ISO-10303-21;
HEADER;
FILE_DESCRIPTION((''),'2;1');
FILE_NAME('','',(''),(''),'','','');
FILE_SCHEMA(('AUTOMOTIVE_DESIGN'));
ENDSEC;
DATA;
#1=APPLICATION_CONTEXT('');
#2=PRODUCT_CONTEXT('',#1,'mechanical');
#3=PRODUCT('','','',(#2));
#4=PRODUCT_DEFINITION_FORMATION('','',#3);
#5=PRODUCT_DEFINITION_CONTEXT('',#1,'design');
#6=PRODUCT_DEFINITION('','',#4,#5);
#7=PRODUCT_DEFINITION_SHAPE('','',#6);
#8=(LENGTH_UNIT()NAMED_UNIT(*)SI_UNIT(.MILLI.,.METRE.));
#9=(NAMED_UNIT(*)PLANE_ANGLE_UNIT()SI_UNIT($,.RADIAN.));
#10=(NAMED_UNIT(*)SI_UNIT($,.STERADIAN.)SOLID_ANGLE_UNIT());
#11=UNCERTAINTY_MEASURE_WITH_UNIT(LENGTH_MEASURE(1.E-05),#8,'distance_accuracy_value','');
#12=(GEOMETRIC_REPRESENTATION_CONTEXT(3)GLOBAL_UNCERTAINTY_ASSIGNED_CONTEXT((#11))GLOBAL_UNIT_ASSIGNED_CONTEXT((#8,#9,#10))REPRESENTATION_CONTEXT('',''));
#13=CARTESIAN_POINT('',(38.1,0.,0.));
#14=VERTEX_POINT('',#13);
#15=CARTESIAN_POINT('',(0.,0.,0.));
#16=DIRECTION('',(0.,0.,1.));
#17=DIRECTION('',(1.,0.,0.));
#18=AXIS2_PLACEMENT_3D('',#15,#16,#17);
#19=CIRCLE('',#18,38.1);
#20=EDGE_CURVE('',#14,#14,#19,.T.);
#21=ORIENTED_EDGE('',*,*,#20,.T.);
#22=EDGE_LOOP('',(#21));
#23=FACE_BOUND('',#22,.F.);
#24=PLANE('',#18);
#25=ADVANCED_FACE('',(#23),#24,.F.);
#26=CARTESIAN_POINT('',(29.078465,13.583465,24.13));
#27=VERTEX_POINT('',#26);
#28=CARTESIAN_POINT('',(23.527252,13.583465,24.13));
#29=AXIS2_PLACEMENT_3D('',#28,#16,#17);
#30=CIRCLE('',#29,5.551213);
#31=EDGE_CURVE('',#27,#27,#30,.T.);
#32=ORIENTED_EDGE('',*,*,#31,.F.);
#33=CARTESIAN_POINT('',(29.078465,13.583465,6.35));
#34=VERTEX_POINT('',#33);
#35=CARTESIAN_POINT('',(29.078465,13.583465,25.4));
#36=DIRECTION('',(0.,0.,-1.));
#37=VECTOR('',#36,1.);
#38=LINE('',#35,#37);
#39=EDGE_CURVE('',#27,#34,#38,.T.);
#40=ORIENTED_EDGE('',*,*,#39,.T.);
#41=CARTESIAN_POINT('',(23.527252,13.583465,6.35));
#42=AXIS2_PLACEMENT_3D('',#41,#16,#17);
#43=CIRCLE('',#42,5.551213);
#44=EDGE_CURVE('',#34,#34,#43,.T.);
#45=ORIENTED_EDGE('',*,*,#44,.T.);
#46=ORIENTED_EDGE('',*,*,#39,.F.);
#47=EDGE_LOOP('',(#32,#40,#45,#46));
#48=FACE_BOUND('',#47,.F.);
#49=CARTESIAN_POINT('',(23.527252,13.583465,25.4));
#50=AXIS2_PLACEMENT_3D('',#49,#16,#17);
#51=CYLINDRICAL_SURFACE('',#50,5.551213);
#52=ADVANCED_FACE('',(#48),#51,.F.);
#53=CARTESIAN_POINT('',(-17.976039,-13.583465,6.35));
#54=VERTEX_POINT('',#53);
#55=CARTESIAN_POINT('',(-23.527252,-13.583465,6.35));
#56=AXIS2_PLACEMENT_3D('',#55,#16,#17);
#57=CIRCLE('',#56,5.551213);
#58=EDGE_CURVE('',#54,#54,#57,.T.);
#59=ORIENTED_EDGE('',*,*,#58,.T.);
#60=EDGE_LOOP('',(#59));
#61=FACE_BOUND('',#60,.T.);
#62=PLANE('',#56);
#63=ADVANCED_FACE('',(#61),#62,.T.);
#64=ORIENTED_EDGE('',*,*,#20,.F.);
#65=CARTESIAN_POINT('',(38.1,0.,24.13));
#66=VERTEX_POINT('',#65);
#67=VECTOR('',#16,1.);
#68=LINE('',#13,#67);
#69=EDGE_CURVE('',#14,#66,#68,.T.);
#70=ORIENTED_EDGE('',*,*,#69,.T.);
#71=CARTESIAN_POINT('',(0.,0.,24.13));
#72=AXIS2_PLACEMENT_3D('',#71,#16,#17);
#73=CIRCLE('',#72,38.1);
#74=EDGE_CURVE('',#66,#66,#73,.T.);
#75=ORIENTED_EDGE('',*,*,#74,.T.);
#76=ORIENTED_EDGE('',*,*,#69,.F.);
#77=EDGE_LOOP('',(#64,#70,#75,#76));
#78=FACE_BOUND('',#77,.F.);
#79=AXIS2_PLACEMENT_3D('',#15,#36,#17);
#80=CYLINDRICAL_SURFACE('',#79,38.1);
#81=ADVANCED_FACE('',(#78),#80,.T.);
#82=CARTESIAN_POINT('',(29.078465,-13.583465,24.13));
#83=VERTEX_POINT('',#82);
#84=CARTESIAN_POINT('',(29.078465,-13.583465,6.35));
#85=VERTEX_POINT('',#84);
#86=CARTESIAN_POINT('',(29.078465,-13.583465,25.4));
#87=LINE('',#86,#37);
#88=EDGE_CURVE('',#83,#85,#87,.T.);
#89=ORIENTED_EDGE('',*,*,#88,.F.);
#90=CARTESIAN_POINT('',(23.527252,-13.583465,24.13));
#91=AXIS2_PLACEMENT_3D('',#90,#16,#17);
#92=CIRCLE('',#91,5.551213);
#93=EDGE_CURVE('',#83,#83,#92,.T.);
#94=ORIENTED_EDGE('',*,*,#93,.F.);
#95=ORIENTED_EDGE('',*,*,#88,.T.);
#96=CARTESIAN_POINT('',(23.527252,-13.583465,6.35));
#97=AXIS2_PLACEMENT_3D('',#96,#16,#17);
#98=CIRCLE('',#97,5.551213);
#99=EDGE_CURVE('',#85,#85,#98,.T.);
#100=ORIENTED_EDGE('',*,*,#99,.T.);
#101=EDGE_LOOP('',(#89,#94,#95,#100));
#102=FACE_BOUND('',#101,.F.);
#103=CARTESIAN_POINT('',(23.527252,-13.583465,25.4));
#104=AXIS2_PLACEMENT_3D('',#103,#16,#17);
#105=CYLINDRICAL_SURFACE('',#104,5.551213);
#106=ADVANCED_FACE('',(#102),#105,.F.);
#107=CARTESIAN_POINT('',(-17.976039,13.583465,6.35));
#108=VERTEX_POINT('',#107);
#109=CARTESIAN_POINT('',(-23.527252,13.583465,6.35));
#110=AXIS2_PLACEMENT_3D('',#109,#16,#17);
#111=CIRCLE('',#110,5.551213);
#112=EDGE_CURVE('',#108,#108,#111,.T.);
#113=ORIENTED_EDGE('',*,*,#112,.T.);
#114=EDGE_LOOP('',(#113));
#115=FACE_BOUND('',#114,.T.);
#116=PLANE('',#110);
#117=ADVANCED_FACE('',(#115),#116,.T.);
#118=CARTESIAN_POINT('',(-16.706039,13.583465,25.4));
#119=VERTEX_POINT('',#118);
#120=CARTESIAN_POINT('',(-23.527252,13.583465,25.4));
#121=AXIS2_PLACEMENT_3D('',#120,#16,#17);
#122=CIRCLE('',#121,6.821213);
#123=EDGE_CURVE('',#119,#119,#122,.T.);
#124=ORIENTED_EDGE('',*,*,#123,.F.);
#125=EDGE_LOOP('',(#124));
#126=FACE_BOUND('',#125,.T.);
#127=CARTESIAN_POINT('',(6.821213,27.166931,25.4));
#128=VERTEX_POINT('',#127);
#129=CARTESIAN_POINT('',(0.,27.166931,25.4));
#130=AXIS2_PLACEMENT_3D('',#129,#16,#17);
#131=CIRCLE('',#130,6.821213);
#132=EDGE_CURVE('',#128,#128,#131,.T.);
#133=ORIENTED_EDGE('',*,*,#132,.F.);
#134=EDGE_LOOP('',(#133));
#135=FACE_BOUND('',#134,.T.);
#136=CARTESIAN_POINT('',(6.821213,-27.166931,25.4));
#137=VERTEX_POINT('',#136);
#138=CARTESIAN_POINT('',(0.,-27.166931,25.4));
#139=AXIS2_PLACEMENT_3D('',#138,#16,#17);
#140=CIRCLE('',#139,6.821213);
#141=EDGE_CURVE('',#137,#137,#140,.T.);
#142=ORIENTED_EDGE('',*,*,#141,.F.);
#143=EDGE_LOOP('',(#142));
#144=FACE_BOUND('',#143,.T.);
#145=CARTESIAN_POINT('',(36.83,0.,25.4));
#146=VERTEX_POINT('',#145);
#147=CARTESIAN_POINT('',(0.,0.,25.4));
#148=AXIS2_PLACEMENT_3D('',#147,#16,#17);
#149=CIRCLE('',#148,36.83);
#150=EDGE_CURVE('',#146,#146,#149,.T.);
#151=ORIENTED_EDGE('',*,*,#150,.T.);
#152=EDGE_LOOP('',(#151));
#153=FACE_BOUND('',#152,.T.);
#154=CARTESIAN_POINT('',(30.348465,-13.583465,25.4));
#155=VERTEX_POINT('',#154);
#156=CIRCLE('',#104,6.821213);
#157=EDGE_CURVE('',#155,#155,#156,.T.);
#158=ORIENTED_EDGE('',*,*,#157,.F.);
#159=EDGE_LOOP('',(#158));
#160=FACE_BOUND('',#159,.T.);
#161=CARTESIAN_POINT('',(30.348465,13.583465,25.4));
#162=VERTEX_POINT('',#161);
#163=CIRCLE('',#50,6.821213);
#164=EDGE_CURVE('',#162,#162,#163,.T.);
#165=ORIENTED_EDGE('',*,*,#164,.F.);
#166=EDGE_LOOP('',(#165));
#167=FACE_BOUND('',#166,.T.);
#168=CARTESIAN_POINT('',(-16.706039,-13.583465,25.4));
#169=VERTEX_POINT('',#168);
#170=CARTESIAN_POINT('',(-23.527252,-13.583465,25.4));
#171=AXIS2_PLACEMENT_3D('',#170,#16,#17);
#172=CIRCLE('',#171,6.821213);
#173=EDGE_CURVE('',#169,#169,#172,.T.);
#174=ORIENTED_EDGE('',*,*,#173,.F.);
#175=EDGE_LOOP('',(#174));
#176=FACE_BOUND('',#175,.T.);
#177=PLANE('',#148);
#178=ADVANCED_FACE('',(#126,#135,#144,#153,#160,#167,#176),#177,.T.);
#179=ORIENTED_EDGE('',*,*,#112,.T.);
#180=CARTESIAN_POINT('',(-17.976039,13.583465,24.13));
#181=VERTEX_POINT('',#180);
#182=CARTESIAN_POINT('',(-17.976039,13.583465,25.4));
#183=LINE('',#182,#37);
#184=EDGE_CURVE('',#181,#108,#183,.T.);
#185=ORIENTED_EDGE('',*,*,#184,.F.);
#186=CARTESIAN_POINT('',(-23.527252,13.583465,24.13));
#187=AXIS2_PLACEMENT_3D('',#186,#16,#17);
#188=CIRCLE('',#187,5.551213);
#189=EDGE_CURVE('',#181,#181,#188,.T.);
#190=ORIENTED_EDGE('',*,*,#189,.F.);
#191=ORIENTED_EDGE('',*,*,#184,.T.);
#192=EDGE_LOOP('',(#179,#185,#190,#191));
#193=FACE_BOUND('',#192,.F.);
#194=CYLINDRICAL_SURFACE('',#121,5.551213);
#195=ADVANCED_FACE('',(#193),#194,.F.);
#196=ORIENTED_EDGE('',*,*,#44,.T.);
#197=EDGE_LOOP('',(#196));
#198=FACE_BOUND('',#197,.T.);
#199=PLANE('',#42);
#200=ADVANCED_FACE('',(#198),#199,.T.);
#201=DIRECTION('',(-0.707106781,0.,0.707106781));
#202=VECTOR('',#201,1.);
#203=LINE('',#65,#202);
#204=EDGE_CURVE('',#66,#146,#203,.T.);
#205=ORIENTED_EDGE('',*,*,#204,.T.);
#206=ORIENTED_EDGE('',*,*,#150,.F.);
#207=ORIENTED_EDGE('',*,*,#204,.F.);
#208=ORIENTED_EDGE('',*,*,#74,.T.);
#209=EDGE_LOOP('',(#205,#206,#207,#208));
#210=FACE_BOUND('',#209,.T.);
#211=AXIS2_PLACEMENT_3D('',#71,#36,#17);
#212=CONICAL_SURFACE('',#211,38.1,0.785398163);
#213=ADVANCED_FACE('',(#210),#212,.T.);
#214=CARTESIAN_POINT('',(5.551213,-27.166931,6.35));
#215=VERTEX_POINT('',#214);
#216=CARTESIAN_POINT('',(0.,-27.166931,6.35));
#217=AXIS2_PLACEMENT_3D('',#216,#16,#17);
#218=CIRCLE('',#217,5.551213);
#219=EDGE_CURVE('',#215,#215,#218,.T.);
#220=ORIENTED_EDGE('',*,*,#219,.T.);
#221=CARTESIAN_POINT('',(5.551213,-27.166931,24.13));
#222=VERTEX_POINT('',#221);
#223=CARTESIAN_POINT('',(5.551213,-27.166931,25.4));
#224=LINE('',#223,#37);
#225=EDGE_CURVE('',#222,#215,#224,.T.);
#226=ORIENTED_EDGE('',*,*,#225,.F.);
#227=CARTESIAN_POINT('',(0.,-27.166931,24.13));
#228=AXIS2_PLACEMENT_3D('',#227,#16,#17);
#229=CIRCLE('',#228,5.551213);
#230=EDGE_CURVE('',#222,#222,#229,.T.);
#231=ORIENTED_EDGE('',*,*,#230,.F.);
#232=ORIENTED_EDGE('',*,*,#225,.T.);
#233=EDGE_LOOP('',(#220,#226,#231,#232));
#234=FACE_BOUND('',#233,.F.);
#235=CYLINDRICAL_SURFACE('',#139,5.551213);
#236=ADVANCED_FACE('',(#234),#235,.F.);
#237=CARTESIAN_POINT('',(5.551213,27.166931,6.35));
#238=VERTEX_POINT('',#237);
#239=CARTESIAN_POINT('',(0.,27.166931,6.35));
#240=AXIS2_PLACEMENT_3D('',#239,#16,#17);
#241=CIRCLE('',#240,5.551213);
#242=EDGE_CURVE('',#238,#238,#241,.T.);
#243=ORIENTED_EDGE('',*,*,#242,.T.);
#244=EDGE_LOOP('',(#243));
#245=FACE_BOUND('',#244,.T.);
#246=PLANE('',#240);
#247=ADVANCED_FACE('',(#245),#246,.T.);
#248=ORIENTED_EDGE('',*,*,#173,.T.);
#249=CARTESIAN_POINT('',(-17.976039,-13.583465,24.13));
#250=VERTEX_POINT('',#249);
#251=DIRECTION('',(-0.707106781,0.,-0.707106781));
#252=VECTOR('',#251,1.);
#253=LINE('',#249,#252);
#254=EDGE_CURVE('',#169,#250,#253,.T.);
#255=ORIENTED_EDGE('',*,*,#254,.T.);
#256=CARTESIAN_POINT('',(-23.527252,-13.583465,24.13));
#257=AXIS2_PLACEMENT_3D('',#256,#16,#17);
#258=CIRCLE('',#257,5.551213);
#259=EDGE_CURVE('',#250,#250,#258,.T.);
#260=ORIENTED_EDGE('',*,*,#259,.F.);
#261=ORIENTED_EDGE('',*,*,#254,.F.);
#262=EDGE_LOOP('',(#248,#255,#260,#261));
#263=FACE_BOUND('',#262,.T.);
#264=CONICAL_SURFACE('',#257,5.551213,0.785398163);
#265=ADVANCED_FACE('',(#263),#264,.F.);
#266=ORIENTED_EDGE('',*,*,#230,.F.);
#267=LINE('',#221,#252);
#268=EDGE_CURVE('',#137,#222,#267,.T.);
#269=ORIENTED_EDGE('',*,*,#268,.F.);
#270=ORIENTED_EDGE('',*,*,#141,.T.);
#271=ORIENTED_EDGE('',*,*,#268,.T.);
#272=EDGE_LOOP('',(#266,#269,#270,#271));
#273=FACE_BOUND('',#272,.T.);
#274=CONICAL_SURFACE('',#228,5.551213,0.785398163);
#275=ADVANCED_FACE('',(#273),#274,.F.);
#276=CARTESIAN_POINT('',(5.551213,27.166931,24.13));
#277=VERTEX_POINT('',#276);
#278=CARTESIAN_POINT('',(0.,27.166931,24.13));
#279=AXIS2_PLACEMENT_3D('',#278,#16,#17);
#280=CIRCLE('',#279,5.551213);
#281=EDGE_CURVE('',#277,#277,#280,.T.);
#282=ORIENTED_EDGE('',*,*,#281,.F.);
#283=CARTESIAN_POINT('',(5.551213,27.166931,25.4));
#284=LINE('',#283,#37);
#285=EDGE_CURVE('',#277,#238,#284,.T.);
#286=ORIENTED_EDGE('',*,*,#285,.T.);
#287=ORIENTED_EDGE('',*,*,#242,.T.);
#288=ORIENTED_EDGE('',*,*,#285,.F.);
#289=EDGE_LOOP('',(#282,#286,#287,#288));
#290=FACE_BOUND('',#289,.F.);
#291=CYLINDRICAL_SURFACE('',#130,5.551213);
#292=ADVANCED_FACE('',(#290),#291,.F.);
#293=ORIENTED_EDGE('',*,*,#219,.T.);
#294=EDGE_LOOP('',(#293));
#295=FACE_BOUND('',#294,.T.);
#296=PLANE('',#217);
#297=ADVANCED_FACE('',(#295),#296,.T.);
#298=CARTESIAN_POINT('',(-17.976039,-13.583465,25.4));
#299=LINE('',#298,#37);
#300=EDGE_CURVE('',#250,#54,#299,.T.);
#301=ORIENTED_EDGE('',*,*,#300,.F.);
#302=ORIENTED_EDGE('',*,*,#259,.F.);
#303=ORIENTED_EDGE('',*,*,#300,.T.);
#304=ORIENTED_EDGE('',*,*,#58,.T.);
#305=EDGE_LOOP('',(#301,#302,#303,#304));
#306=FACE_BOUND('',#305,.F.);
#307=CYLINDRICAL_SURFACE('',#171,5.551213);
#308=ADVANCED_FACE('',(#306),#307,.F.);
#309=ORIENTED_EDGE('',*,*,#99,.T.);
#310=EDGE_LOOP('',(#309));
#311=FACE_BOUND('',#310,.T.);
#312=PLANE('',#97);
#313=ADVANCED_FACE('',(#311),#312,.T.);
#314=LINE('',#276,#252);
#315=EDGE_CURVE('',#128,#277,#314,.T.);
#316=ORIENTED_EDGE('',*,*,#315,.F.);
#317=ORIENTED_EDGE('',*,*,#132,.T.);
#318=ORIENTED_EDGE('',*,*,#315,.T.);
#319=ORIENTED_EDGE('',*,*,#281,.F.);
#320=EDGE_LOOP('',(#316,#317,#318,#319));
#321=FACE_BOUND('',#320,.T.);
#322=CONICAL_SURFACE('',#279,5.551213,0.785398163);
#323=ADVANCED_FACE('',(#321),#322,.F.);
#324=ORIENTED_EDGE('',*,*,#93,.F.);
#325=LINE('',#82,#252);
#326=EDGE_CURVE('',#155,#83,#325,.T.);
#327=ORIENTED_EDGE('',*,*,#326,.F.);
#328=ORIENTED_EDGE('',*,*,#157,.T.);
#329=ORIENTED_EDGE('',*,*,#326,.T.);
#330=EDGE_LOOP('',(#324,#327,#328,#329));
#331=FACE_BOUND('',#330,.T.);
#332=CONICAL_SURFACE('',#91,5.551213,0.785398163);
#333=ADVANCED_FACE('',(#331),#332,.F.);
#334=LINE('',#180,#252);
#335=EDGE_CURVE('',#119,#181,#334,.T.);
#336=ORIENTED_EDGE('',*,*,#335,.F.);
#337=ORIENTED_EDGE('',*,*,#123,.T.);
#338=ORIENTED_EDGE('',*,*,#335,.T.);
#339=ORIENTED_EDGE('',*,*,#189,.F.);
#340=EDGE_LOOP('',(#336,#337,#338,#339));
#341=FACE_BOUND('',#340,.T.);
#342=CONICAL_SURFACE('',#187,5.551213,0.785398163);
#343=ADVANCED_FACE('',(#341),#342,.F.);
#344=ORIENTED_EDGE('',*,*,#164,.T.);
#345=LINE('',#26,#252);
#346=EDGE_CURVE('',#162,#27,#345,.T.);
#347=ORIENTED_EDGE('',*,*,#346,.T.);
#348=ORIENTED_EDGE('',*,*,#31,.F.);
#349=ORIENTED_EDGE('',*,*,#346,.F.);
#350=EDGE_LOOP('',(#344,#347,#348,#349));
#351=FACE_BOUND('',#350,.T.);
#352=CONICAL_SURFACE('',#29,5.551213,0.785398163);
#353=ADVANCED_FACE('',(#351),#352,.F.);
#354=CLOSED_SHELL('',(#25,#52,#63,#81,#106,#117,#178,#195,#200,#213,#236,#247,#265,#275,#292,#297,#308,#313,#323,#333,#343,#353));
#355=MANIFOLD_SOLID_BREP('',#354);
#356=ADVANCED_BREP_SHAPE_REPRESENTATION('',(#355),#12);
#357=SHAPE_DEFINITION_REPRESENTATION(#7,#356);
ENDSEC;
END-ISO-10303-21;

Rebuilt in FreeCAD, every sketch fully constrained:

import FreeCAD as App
import Part
import Sketcher
from FreeCAD import Vector
Q = App.Units.Quantity


def edges_at(feature, points):
    """Names of the edges that pass closest to the given points."""
    edges = feature.Shape.Edges
    near = lambda p: min(range(len(edges)), key=lambda i: edges[i].distToShape(Part.Vertex(*p))[0])
    return sorted({f"Edge{near(p) + 1}" for p in points})

doc = App.newDocument("Part")
body = doc.addObject("PartDesign::Body", "Body")

sketch1 = doc.addObject("Sketcher::SketchObject", "Sketch")
body.addObject(sketch1)
sketch1.AttachmentSupport = (doc.XY_Plane, [""])
sketch1.MapMode = "FlatFace"
sketch1.addGeometry(Part.Circle(Vector(0, 0, 0), Vector(0, 0, 1), 38), False)
sketch1.addConstraint(Sketcher.Constraint("Coincident", 0, 3, -1, 1))
sketch1.addConstraint(Sketcher.Constraint("Diameter", 0, Q("3 in")))
pad1 = doc.addObject("PartDesign::Pad", "Pad")
body.addObject(pad1)
pad1.Profile = sketch1
pad1.Length = Q("1 in")

sketch2 = doc.addObject("Sketcher::SketchObject", "Sketch001")
body.addObject(sketch2)
sketch2.AttachmentSupport = (doc.XY_Plane, [""])
sketch2.MapMode = "FlatFace"
sketch2.AttachmentOffset = App.Placement(Vector(0, 0, 1 * 25.4), App.Rotation())
sketch2.addGeometry(Part.Circle(Vector(0, 27, 0), Vector(0, 0, 1), 6), False)
sketch2.addGeometry(Part.Circle(Vector(-24, 14, 0), Vector(0, 0, 1), 6), False)
sketch2.addGeometry(Part.Circle(Vector(-24, -14, 0), Vector(0, 0, 1), 6), False)
sketch2.addGeometry(Part.Circle(Vector(0, -27, 0), Vector(0, 0, 1), 6), False)
sketch2.addGeometry(Part.Circle(Vector(24, -14, 0), Vector(0, 0, 1), 6), False)
sketch2.addGeometry(Part.Circle(Vector(24, 14, 0), Vector(0, 0, 1), 6), False)
sketch2.addConstraint(Sketcher.Constraint("Equal", 0, 1))
sketch2.addConstraint(Sketcher.Constraint("Equal", 1, 2))
sketch2.addConstraint(Sketcher.Constraint("Equal", 2, 3))
sketch2.addConstraint(Sketcher.Constraint("Equal", 3, 4))
sketch2.addConstraint(Sketcher.Constraint("Equal", 4, 5))
sketch2.addConstraint(Sketcher.Constraint("Symmetric", 0, 3, 3, 3, -1, 1))
sketch2.addConstraint(Sketcher.Constraint("Symmetric", 1, 3, 4, 3, -1, 1))
sketch2.addConstraint(Sketcher.Constraint("Symmetric", 2, 3, 5, 3, -1, 1))
sketch2.addConstraint(Sketcher.Constraint("Symmetric", 2, 3, 4, 3, -2))
sketch2.addConstraint(Sketcher.Constraint("PointOnObject", 0, 3, -2))
sketch2.addConstraint(Sketcher.Constraint("Diameter", 0, Q("11.102426 mm")))
sketch2.addConstraint(Sketcher.Constraint("DistanceY", -1, 1, 0, 3, Q("27.166931 mm")))
sketch2.addConstraint(Sketcher.Constraint("DistanceY", 2, 3, 1, 3, Q("27.16693 mm")))
sketch2.addConstraint(Sketcher.Constraint("DistanceX", 1, 3, -1, 1, Q("23.527252 mm")))
pocket1 = doc.addObject("PartDesign::Pocket", "Pocket")
body.addObject(pocket1)
pocket1.Profile = sketch2
pocket1.Length = Q("0.75 in")
doc.recompute()

chamfer = doc.addObject("PartDesign::Chamfer", "Chamfer")
body.addObject(chamfer)
chamfer.Base = (pocket1, edges_at(pocket1, [
    (-5.551, 27.167, 25.4),
    (-38.1, 0, 25.4),
    (-29.078, -13.583, 25.4),
    (-5.551, -27.167, 25.4),
    (17.976, -13.583, 25.4),
    (-29.078, 13.583, 25.4),
    (17.976, 13.583, 25.4),
]))
chamfer.Size = Q("0.05 in")

doc.recompute()
